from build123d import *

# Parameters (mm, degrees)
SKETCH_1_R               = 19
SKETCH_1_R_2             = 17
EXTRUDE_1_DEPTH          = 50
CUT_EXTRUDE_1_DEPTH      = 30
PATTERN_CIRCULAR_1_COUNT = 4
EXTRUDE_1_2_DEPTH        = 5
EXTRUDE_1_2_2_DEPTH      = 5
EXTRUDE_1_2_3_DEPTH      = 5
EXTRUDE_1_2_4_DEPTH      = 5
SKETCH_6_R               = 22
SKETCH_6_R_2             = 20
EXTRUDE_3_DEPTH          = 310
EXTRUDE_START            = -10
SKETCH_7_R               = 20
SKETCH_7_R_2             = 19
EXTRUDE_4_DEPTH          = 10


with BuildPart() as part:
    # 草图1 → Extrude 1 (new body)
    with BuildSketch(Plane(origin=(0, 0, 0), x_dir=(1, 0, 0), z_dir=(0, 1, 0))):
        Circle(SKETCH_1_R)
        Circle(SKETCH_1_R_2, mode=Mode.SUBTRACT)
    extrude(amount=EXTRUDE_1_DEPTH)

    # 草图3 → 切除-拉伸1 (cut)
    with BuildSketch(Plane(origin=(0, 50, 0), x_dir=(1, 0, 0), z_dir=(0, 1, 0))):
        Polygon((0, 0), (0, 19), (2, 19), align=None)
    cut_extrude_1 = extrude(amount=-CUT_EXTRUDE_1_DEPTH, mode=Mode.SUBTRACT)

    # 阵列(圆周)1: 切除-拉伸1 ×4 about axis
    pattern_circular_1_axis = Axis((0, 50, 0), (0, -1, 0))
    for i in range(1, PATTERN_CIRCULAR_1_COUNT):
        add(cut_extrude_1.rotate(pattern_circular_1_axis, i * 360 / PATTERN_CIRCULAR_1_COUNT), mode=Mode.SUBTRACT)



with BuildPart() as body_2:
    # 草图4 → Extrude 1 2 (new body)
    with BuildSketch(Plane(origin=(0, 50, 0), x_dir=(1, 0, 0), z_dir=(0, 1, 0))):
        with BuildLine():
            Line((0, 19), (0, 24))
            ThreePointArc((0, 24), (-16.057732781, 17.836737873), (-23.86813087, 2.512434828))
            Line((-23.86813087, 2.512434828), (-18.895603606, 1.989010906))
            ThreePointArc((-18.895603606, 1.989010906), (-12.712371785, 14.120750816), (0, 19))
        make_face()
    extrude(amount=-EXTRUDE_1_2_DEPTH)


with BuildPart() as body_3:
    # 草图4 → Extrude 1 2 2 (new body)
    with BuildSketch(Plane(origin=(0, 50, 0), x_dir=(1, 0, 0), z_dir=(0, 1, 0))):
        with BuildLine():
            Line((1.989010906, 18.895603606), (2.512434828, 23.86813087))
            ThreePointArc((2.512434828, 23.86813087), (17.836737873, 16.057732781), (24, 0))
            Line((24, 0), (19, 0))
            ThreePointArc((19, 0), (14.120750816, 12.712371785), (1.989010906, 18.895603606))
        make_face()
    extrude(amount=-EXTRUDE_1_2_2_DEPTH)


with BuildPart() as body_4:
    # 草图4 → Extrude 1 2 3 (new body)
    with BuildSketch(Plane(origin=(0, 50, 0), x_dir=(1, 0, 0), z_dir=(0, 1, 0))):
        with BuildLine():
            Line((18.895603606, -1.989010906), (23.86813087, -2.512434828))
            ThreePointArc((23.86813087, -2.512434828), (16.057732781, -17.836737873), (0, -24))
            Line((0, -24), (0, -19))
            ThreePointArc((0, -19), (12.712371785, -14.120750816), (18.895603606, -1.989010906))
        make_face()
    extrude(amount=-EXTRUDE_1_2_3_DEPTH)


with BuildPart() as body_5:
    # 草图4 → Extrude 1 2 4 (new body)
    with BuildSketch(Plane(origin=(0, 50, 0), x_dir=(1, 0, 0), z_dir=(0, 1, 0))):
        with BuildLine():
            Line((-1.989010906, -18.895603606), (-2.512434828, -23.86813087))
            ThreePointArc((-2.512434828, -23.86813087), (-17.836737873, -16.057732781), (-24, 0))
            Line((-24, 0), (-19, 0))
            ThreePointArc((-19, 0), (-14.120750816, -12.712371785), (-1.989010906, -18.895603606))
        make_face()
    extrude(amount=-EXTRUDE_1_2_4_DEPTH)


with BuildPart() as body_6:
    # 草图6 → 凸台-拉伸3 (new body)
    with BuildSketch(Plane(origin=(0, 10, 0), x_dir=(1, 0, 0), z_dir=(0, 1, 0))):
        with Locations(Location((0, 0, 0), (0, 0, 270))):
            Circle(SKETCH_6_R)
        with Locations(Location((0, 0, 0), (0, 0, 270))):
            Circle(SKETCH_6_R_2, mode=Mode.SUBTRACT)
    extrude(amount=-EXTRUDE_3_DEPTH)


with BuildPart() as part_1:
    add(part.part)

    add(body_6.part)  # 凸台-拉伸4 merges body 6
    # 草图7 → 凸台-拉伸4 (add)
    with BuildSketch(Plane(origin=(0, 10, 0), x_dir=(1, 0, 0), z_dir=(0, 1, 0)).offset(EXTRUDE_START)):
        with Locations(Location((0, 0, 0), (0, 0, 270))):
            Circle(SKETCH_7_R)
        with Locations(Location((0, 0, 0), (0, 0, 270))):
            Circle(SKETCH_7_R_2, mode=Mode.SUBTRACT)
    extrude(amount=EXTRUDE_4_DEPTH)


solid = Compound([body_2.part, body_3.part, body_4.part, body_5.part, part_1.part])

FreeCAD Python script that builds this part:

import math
import FreeCAD as App
import Part
import Sketcher

V = App.Vector

doc = App.newDocument("Part")
body = doc.addObject("PartDesign::Body", "Body")

sketch1 = body.newObject("Sketcher::SketchObject", "Sketch")
sketch1.AttachmentSupport = (doc.getObject("XZ_Plane"), [""])
sketch1.MapMode = "FlatFace"
sketch1.addGeometry(Part.Circle(V(0, 0, 0), V(0, 0, 1), 19), False)
sketch1.addGeometry(Part.Circle(V(0, 0, 0), V(0, 0, 1), 17), False)
sketch1.addConstraint(Sketcher.Constraint("Coincident", 0, 3, -1, 1))
sketch1.addConstraint(Sketcher.Constraint("Coincident", 1, 3, -1, 1))
sketch1.addConstraint(Sketcher.Constraint("Diameter", 0, 38.0))
sketch1.addConstraint(Sketcher.Constraint("Diameter", 1, 34.0))
pad1 = body.newObject("PartDesign::Pad", "Pad")
pad1.Profile = sketch1
pad1.Length = 50
pad1.Reversed = True

sketch2 = body.newObject("Sketcher::SketchObject", "Sketch001")
sketch2.AttachmentSupport = (doc.getObject("XZ_Plane"), [""])
sketch2.MapMode = "FlatFace"
sketch2.AttachmentOffset = App.Placement(V(0, 0, -50), App.Rotation())
sketch2.addGeometry(Part.LineSegment(V(0, -19, 0), V(0, 0, 0)), False)
sketch2.addGeometry(Part.LineSegment(V(0, 0, 0), V(2, -19, 0)), False)
sketch2.addGeometry(Part.LineSegment(V(2, -19, 0), V(0, -19, 0)), False)
sketch2.addConstraint(Sketcher.Constraint("Coincident", 0, 2, 1, 1))
sketch2.addConstraint(Sketcher.Constraint("Coincident", 1, 2, 2, 1))
sketch2.addConstraint(Sketcher.Constraint("Coincident", 2, 2, 0, 1))
sketch2.addConstraint(Sketcher.Constraint("Vertical", 0))
sketch2.addConstraint(Sketcher.Constraint("Horizontal", 2))
sketch2.addConstraint(Sketcher.Constraint("Coincident", 0, 2, -1, 1))
sketch2.addConstraint(Sketcher.Constraint("DistanceX", 2, 2, 2, 1, 2.0))
sketch2.addConstraint(Sketcher.Constraint("DistanceY", 0, 1, 0, 2, 19.0))
pocket1 = body.newObject("PartDesign::Pocket", "Pocket")
pocket1.Profile = sketch2
pocket1.Length = 30
pocket1.Reversed = True
doc.recompute()

polarpattern = body.newObject("PartDesign::PolarPattern", "PolarPattern")
polarpattern.Originals = [pocket1]
polarpattern.Axis = (doc.getObject("Y_Axis"), [""])
polarpattern.Angle = 360
polarpattern.Occurrences = 4
body.Tip = polarpattern
body2 = doc.addObject("PartDesign::Body", "Body001")

sketch3 = body2.newObject("Sketcher::SketchObject", "Sketch002")
sketch3.AttachmentSupport = (doc.getObject("XZ_Plane001"), [""])
sketch3.MapMode = "FlatFace"
sketch3.AttachmentOffset = App.Placement(V(0, 0, -50), App.Rotation())
sketch3.addGeometry(Part.LineSegment(V(0, -19, 0), V(0, -24, 0)), False)
sketch3.addGeometry(Part.ArcOfCircle(Part.Circle(V(0, 0, 0), V(0, 0, 1), 24), math.radians(-174), math.radians(-90)), False)
sketch3.addGeometry(Part.LineSegment(V(-23.9, -2.5, 0), V(-18.9, -2, 0)), False)
sketch3.addGeometry(Part.ArcOfCircle(Part.Circle(V(0, 0, 0), V(0, 0, 1), 19), math.radians(-174), math.radians(-90)), False)
sketch3.addConstraint(Sketcher.Constraint("Coincident", 0, 2, 1, 2))
sketch3.addConstraint(Sketcher.Constraint("Coincident", 1, 1, 2, 1))
sketch3.addConstraint(Sketcher.Constraint("Coincident", 2, 2, 3, 1))
sketch3.addConstraint(Sketcher.Constraint("Coincident", 3, 2, 0, 1))
sketch3.addConstraint(Sketcher.Constraint("Vertical", 0))
sketch3.addConstraint(Sketcher.Constraint("Coincident", 1, 3, -1, 1))
sketch3.addConstraint(Sketcher.Constraint("Coincident", 3, 3, -1, 1))
sketch3.addConstraint(Sketcher.Constraint("PointOnObject", 0, 2, -2))
sketch3.addConstraint(Sketcher.Constraint("Radius", 1, 24.0))
sketch3.addConstraint(Sketcher.Constraint("Radius", 3, 19.0))
sketch3.addConstraint(Sketcher.Constraint("DistanceX", 1, 1, -1, 1, 23.868131))
sketch3.addConstraint(Sketcher.Constraint("DistanceY", 2, 2, -1, 1, 1.989011))
pad2 = body2.newObject("PartDesign::Pad", "Pad001")
pad2.Profile = sketch3
pad2.Length = 5
body3 = doc.addObject("PartDesign::Body", "Body002")

sketch4 = body3.newObject("Sketcher::SketchObject", "Sketch003")
sketch4.AttachmentSupport = (doc.getObject("XZ_Plane002"), [""])
sketch4.MapMode = "FlatFace"
sketch4.AttachmentOffset = App.Placement(V(0, 0, -50), App.Rotation())
sketch4.addGeometry(Part.LineSegment(V(2.5, -23.9, 0), V(2, -18.9, 0)), False)
sketch4.addGeometry(Part.ArcOfCircle(Part.Circle(V(0, 0, 0), V(0, 0, 1), 19), math.radians(-84), math.radians(0)), False)
sketch4.addGeometry(Part.LineSegment(V(19, 0, 0), V(24, 0, 0)), False)
sketch4.addGeometry(Part.ArcOfCircle(Part.Circle(V(0, 0, 0), V(0, 0, 1), 24), math.radians(-84), math.radians(0)), False)
sketch4.addConstraint(Sketcher.Constraint("Coincident", 0, 2, 1, 1))
sketch4.addConstraint(Sketcher.Constraint("Coincident", 1, 2, 2, 1))
sketch4.addConstraint(Sketcher.Constraint("Coincident", 2, 2, 3, 2))
sketch4.addConstraint(Sketcher.Constraint("Coincident", 3, 1, 0, 1))
sketch4.addConstraint(Sketcher.Constraint("Horizontal", 2))
sketch4.addConstraint(Sketcher.Constraint("Coincident", 1, 3, -1, 1))
sketch4.addConstraint(Sketcher.Constraint("Coincident", 3, 3, -1, 1))
sketch4.addConstraint(Sketcher.Constraint("PointOnObject", 1, 2, -1))
sketch4.addConstraint(Sketcher.Constraint("Radius", 1, 19.0))
sketch4.addConstraint(Sketcher.Constraint("Radius", 3, 24.0))
sketch4.addConstraint(Sketcher.Constraint("DistanceX", -1, 1, 0, 2, 1.989011))
sketch4.addConstraint(Sketcher.Constraint("DistanceY", 3, 1, -1, 1, 23.868131))
pad3 = body3.newObject("PartDesign::Pad", "Pad002")
pad3.Profile = sketch4
pad3.Length = 5
body4 = doc.addObject("PartDesign::Body", "Body003")

sketch5 = body4.newObject("Sketcher::SketchObject", "Sketch004")
sketch5.AttachmentSupport = (doc.getObject("XZ_Plane003"), [""])
sketch5.MapMode = "FlatFace"
sketch5.AttachmentOffset = App.Placement(V(0, 0, -50), App.Rotation())
sketch5.addGeometry(Part.LineSegment(V(23.9, 2.5, 0), V(18.9, 2, 0)), False)
sketch5.addGeometry(Part.ArcOfCircle(Part.Circle(V(0, 0, 0), V(0, 0, 1), 19), math.radians(6), math.radians(90)), False)
sketch5.addGeometry(Part.LineSegment(V(0, 19, 0), V(0, 24, 0)), False)
sketch5.addGeometry(Part.ArcOfCircle(Part.Circle(V(0, 0, 0), V(0, 0, 1), 24), math.radians(6), math.radians(90)), False)
sketch5.addConstraint(Sketcher.Constraint("Coincident", 0, 2, 1, 1))
sketch5.addConstraint(Sketcher.Constraint("Coincident", 1, 2, 2, 1))
sketch5.addConstraint(Sketcher.Constraint("Coincident", 2, 2, 3, 2))
sketch5.addConstraint(Sketcher.Constraint("Coincident", 3, 1, 0, 1))
sketch5.addConstraint(Sketcher.Constraint("Vertical", 2))
sketch5.addConstraint(Sketcher.Constraint("Coincident", 1, 3, -1, 1))
sketch5.addConstraint(Sketcher.Constraint("Coincident", 3, 3, -1, 1))
sketch5.addConstraint(Sketcher.Constraint("PointOnObject", 1, 2, -2))
sketch5.addConstraint(Sketcher.Constraint("Radius", 1, 19.0))
sketch5.addConstraint(Sketcher.Constraint("Radius", 3, 24.0))
sketch5.addConstraint(Sketcher.Constraint("DistanceY", -1, 1, 0, 2, 1.989011))
sketch5.addConstraint(Sketcher.Constraint("DistanceX", -1, 1, 3, 1, 23.868131))
pad4 = body4.newObject("PartDesign::Pad", "Pad003")
pad4.Profile = sketch5
pad4.Length = 5
body5 = doc.addObject("PartDesign::Body", "Body004")

sketch6 = body5.newObject("Sketcher::SketchObject", "Sketch005")
sketch6.AttachmentSupport = (doc.getObject("XZ_Plane004"), [""])
sketch6.MapMode = "FlatFace"
sketch6.AttachmentOffset = App.Placement(V(0, 0, -50), App.Rotation())
sketch6.addGeometry(Part.LineSegment(V(-2.5, 23.9, 0), V(-2, 18.9, 0)), False)
sketch6.addGeometry(Part.ArcOfCircle(Part.Circle(V(0, 0, 0), V(0, 0, 1), 19), math.radians(96), math.radians(180)), False)
sketch6.addGeometry(Part.LineSegment(V(-19, 0, 0), V(-24, 0, 0)), False)
sketch6.addGeometry(Part.ArcOfCircle(Part.Circle(V(0, 0, 0), V(0, 0, 1), 24), math.radians(96), math.radians(180)), False)
sketch6.addConstraint(Sketcher.Constraint("Coincident", 0, 2, 1, 1))
sketch6.addConstraint(Sketcher.Constraint("Coincident", 1, 2, 2, 1))
sketch6.addConstraint(Sketcher.Constraint("Coincident", 2, 2, 3, 2))
sketch6.addConstraint(Sketcher.Constraint("Coincident", 3, 1, 0, 1))
sketch6.addConstraint(Sketcher.Constraint("Horizontal", 2))
sketch6.addConstraint(Sketcher.Constraint("Coincident", 1, 3, -1, 1))
sketch6.addConstraint(Sketcher.Constraint("Coincident", 3, 3, -1, 1))
sketch6.addConstraint(Sketcher.Constraint("PointOnObject", 1, 2, -1))
sketch6.addConstraint(Sketcher.Constraint("Radius", 1, 19.0))
sketch6.addConstraint(Sketcher.Constraint("Radius", 3, 24.0))
sketch6.addConstraint(Sketcher.Constraint("DistanceX", 0, 2, -1, 1, 1.989011))
sketch6.addConstraint(Sketcher.Constraint("DistanceY", -1, 1, 3, 1, 23.868131))
pad5 = body5.newObject("PartDesign::Pad", "Pad004")
pad5.Profile = sketch6
pad5.Length = 5
body6 = doc.addObject("PartDesign::Body", "Body005")

sketch7 = body6.newObject("Sketcher::SketchObject", "Sketch006")
sketch7.AttachmentSupport = (doc.getObject("XZ_Plane005"), [""])
sketch7.MapMode = "FlatFace"
sketch7.AttachmentOffset = App.Placement(V(0, 0, -10), App.Rotation())
sketch7.addGeometry(Part.Circle(V(0, 0, 0), V(0, 0, 1), 22), False)
sketch7.addGeometry(Part.Circle(V(0, 0, 0), V(0, 0, 1), 20), False)
sketch7.addConstraint(Sketcher.Constraint("Coincident", 0, 3, -1, 1))
sketch7.addConstraint(Sketcher.Constraint("Coincident", 1, 3, -1, 1))
sketch7.addConstraint(Sketcher.Constraint("Diameter", 0, 44.0))
sketch7.addConstraint(Sketcher.Constraint("Diameter", 1, 40.0))
pad6 = body6.newObject("PartDesign::Pad", "Pad005")
pad6.Profile = sketch7
pad6.Length = 310
body.AllowCompound = True
doc.recompute()

boolean = body.newObject("PartDesign::Boolean", "Boolean")
boolean.Type = "Fuse"
boolean.addObjects([body6])

sketch8 = body.newObject("Sketcher::SketchObject", "Sketch007")
sketch8.AttachmentSupport = (doc.getObject("XZ_Plane"), [""])
sketch8.MapMode = "FlatFace"
sketch8.addGeometry(Part.Circle(V(0, 0, 0), V(0, 0, 1), 20), False)
sketch8.addGeometry(Part.Circle(V(0, 0, 0), V(0, 0, 1), 19), False)
sketch8.addConstraint(Sketcher.Constraint("Coincident", 0, 3, -1, 1))
sketch8.addConstraint(Sketcher.Constraint("Coincident", 1, 3, -1, 1))
sketch8.addConstraint(Sketcher.Constraint("Diameter", 0, 40.0))
sketch8.addConstraint(Sketcher.Constraint("Diameter", 1, 38.0))
pad7 = body.newObject("PartDesign::Pad", "Pad006")
pad7.Profile = sketch8
pad7.Length = 10
pad7.Reversed = True

doc.recompute()
